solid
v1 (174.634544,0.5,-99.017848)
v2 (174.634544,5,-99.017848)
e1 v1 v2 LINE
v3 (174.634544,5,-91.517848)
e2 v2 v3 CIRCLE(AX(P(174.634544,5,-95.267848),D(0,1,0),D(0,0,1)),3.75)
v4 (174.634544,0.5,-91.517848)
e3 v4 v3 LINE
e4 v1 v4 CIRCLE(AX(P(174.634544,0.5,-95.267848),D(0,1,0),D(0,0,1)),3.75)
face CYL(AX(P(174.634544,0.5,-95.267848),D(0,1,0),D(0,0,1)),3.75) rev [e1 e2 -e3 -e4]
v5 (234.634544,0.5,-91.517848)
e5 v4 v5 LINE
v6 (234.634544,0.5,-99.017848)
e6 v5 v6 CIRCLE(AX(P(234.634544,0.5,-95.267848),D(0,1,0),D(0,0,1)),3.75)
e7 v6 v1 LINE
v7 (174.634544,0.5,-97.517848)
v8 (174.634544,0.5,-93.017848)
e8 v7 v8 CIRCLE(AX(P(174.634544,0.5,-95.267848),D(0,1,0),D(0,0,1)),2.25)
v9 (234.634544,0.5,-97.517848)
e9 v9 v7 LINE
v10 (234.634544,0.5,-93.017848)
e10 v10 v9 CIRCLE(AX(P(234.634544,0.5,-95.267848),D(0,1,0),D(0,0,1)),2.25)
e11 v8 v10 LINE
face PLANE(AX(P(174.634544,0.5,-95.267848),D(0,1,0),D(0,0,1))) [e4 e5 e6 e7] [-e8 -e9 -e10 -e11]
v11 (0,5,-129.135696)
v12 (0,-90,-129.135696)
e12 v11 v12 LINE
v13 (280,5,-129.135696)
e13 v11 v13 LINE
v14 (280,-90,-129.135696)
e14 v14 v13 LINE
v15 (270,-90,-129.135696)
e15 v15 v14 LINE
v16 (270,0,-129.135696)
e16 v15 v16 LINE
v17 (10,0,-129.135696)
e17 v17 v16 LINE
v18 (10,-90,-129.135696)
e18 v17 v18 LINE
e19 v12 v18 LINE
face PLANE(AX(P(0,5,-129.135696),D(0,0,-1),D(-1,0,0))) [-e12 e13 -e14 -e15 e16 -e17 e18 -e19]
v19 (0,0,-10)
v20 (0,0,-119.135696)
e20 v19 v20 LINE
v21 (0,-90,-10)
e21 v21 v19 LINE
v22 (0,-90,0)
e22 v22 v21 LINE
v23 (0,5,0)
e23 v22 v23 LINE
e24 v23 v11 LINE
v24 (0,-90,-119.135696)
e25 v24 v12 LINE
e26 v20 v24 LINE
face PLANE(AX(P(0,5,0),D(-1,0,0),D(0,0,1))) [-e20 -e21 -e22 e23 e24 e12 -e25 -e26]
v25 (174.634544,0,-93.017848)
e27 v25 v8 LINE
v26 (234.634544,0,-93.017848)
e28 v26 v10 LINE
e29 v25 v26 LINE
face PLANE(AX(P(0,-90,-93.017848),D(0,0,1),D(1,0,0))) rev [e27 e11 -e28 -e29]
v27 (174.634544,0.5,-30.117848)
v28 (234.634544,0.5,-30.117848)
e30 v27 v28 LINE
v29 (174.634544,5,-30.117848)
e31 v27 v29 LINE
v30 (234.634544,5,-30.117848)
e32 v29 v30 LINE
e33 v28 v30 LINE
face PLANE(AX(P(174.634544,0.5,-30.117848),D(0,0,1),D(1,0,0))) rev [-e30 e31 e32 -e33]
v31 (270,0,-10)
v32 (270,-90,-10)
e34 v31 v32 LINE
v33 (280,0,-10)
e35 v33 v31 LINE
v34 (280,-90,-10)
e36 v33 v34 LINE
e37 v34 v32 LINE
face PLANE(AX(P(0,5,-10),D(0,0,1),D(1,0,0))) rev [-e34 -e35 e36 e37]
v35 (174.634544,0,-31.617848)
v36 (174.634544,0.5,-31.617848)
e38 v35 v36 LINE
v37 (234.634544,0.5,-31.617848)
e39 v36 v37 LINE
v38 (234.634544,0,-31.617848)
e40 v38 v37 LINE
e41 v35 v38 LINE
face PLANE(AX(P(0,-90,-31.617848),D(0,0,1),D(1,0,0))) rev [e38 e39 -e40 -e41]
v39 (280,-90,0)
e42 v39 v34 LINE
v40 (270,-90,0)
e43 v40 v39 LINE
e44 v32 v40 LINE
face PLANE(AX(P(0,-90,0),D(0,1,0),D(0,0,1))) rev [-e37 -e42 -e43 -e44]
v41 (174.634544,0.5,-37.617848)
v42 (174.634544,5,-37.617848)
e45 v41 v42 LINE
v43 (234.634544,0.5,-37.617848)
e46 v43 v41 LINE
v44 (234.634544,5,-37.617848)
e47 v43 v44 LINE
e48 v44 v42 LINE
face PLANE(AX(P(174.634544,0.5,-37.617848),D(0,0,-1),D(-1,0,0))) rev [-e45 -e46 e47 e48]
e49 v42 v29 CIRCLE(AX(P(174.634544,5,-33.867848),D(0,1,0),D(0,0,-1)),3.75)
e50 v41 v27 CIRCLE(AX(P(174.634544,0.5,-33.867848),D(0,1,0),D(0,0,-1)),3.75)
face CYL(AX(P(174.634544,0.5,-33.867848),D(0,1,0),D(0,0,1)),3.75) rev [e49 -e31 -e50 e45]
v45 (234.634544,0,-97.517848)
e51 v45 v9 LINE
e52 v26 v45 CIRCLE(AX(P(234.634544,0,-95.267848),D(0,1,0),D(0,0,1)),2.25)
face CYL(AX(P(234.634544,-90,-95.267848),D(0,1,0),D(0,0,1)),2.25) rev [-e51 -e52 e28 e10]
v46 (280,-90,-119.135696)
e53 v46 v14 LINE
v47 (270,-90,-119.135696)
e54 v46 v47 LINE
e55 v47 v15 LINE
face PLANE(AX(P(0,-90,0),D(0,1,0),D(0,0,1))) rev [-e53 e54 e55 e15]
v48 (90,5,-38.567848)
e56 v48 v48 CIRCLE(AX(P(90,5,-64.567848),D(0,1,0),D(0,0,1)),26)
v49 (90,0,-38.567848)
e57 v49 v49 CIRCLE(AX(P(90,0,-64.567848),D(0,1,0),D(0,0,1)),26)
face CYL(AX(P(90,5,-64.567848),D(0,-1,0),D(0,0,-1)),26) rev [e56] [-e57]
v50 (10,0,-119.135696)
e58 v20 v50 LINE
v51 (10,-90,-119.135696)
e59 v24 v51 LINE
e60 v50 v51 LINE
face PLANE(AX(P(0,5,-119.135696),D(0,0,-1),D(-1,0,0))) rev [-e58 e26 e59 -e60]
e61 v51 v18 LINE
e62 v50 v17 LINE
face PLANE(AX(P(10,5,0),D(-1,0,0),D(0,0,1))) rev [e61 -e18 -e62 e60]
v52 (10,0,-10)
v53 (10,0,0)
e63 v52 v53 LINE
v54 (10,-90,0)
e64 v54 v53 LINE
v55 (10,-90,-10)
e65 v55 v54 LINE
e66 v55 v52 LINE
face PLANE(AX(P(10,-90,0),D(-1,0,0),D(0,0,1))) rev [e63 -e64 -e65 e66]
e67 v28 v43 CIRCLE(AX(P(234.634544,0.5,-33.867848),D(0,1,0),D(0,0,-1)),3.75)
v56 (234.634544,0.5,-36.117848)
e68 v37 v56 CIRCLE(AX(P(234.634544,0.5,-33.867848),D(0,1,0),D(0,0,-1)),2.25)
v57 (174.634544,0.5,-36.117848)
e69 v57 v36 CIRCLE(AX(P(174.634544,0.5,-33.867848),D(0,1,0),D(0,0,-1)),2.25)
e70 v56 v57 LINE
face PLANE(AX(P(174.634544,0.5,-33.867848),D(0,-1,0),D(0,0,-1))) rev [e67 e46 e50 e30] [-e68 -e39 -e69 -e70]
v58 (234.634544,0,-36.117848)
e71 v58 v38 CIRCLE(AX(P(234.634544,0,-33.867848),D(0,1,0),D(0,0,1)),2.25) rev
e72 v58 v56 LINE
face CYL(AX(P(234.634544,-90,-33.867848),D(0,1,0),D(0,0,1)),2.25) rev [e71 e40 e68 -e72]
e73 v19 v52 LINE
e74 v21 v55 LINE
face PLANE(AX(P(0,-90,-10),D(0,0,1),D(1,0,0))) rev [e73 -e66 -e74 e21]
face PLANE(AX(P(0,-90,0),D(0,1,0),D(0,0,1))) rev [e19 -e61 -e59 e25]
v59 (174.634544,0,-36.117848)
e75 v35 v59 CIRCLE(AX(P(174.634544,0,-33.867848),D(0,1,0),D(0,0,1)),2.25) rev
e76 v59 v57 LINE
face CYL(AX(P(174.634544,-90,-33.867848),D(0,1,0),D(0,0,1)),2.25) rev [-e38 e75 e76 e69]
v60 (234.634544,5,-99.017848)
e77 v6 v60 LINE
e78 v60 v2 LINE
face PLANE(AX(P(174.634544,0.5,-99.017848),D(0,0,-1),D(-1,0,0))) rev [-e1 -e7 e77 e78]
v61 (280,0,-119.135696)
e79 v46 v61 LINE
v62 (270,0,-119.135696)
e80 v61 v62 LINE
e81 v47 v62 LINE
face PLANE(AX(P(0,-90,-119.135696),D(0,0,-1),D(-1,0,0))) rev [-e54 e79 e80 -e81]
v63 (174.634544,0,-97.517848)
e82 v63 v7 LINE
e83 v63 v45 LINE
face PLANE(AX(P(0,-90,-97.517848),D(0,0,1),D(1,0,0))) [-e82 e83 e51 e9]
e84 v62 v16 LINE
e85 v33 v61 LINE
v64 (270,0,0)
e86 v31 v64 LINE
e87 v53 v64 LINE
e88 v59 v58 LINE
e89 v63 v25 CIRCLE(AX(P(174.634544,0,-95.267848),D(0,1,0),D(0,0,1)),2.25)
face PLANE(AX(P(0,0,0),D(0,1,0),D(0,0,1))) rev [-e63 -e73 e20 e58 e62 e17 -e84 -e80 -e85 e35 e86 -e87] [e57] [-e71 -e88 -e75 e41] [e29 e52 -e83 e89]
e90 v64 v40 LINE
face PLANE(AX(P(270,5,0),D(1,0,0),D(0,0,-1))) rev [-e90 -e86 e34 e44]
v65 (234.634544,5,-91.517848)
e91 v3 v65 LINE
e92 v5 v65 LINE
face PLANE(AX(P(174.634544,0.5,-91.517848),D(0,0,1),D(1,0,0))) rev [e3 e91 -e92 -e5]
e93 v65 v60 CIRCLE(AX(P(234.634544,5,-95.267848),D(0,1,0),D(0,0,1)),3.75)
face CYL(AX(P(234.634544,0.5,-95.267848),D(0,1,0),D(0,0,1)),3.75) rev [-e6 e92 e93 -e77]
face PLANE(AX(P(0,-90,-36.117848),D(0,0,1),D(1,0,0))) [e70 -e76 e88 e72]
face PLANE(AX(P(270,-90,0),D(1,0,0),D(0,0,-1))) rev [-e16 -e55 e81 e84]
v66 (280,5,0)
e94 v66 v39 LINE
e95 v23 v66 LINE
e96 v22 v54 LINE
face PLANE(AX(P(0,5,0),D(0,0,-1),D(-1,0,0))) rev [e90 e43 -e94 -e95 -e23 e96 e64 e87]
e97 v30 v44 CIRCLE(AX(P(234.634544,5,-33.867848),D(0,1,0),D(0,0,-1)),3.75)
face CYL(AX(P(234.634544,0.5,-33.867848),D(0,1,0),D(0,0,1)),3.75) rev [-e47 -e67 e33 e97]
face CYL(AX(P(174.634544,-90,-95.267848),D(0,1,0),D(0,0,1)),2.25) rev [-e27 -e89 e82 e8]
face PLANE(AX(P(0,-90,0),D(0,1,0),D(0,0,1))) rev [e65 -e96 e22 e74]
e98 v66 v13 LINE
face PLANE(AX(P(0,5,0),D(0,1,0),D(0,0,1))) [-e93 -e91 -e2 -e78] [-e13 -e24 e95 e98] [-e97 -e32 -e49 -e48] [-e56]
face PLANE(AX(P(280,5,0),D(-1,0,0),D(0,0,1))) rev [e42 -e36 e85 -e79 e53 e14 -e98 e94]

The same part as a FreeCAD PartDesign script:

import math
import FreeCAD as App
import Part
import Sketcher

V = App.Vector

doc = App.newDocument("Part")
body = doc.addObject("PartDesign::Body", "Body")

# Sketch on XZ plane
sketch1 = doc.addObject("Sketcher::SketchObject", "Sketch")
body.addObject(sketch1)
sketch1.AttachmentSupport = (doc.XZ_Plane, [""])
sketch1.MapMode = "FlatFace"
sketch1.addGeometry([
    Part.LineSegment(V(10, -10, 0), V(10, 0, 0)),  # 0
    Part.LineSegment(V(10, 0, 0), V(270, 0, 0)),  # 1
    Part.LineSegment(V(270, 0, 0), V(270, -10, 0)),  # 2
    Part.LineSegment(V(270, -10, 0), V(280, -10, 0)),  # 3
    Part.LineSegment(V(280, -10, 0), V(280, -119, 0)),  # 4
    Part.LineSegment(V(280, -119, 0), V(270, -119, 0)),  # 5
    Part.LineSegment(V(270, -119, 0), V(270, -129, 0)),  # 6
    Part.LineSegment(V(270, -129, 0), V(10, -129, 0)),  # 7
    Part.LineSegment(V(10, -129, 0), V(10, -119, 0)),  # 8
    Part.LineSegment(V(10, -119, 0), V(0, -119, 0)),  # 9
    Part.LineSegment(V(0, -119, 0), V(0, -10, 0)),  # 10
    Part.LineSegment(V(0, -10, 0), V(10, -10, 0)),  # 11
    Part.Circle(V(90, -65, 0), V(0, 0, 1), 26),  # 12
], False)
sketch1.addConstraint([
    Sketcher.Constraint("Coincident", 0, 2, 1, 1),
    Sketcher.Constraint("Coincident", 1, 2, 2, 1),
    Sketcher.Constraint("Coincident", 2, 2, 3, 1),
    Sketcher.Constraint("Coincident", 3, 2, 4, 1),
    Sketcher.Constraint("Coincident", 4, 2, 5, 1),
    Sketcher.Constraint("Coincident", 5, 2, 6, 1),
    Sketcher.Constraint("Coincident", 6, 2, 7, 1),
    Sketcher.Constraint("Coincident", 7, 2, 8, 1),
    Sketcher.Constraint("Coincident", 8, 2, 9, 1),
    Sketcher.Constraint("Coincident", 9, 2, 10, 1),
    Sketcher.Constraint("Coincident", 10, 2, 11, 1),
    Sketcher.Constraint("Coincident", 11, 2, 0, 1),
    Sketcher.Constraint("Vertical", 0),
    Sketcher.Constraint("Horizontal", 1),
    Sketcher.Constraint("Vertical", 2),
    Sketcher.Constraint("Horizontal", 3),
    Sketcher.Constraint("Vertical", 4),
    Sketcher.Constraint("Horizontal", 5),
    Sketcher.Constraint("Vertical", 6),
    Sketcher.Constraint("Horizontal", 7),
    Sketcher.Constraint("Vertical", 8),
    Sketcher.Constraint("Horizontal", 9),
    Sketcher.Constraint("Vertical", 10),
    Sketcher.Constraint("Horizontal", 11),
    Sketcher.Constraint("PointOnObject", 0, 2, -1),
    Sketcher.Constraint("PointOnObject", 9, 2, -2),
    Sketcher.Constraint("Horizontal", 5, 2, 8, 2),
    Sketcher.Constraint("Horizontal", 3, 2, 10, 2),
    Sketcher.Constraint("Vertical", 2, 2, 5, 2),
    Sketcher.Constraint("Vertical", 0, 2, 7, 2),
    Sketcher.Constraint("Equal", 5, 9),
    Sketcher.Constraint("Equal", 11, 0),
    Sketcher.Constraint("Equal", 2, 6),
    Sketcher.Constraint("Diameter", 12, 52.0),
    Sketcher.Constraint("DistanceX", 1, 1, 1, 2, 260.0),
    Sketcher.Constraint("DistanceX", 3, 1, 3, 2, 10.0),
    Sketcher.Constraint("DistanceX", -1, 1, 12, 3, 90.0),
    Sketcher.Constraint("DistanceY", 4, 2, 4, 1, 109.135696),
    Sketcher.Constraint("DistanceY", 12, 3, -1, 1, 64.567848),
])
pad1 = doc.addObject("PartDesign::Pad", "Pad")
body.addObject(pad1)
pad1.Profile = sketch1
pad1.Length = 5
pad1.Reversed = True

# Sketch on XZ plane
sketch2 = doc.addObject("Sketcher::SketchObject", "Sketch001")
body.addObject(sketch2)
sketch2.AttachmentSupport = (doc.XZ_Plane, [""])
sketch2.MapMode = "FlatFace"
sketch2.addGeometry([
    Part.LineSegment(V(0, -10, 0), V(0, 0, 0)),  # 0
    Part.LineSegment(V(0, 0, 0), V(10, 0, 0)),  # 1
    Part.LineSegment(V(10, 0, 0), V(10, -10, 0)),  # 2
    Part.LineSegment(V(10, -10, 0), V(0, -10, 0)),  # 3
    Part.LineSegment(V(270, -10, 0), V(270, 0, 0)),  # 4
    Part.LineSegment(V(270, 0, 0), V(280, 0, 0)),  # 5
    Part.LineSegment(V(280, 0, 0), V(280, -10, 0)),  # 6
    Part.LineSegment(V(280, -10, 0), V(270, -10, 0)),  # 7
    Part.LineSegment(V(270, -129, 0), V(270, -119, 0)),  # 8
    Part.LineSegment(V(270, -119, 0), V(280, -119, 0)),  # 9
    Part.LineSegment(V(280, -119, 0), V(280, -129, 0)),  # 10
    Part.LineSegment(V(280, -129, 0), V(270, -129, 0)),  # 11
    Part.LineSegment(V(0, -129, 0), V(0, -119, 0)),  # 12
    Part.LineSegment(V(0, -119, 0), V(10, -119, 0)),  # 13
    Part.LineSegment(V(10, -119, 0), V(10, -129, 0)),  # 14
    Part.LineSegment(V(10, -129, 0), V(0, -129, 0)),  # 15
], False)
sketch2.addConstraint([
    Sketcher.Constraint("Coincident", 0, 2, 1, 1),
    Sketcher.Constraint("Coincident", 1, 2, 2, 1),
    Sketcher.Constraint("Coincident", 2, 2, 3, 1),
    Sketcher.Constraint("Coincident", 3, 2, 0, 1),
    Sketcher.Constraint("Coincident", 4, 2, 5, 1),
    Sketcher.Constraint("Coincident", 5, 2, 6, 1),
    Sketcher.Constraint("Coincident", 6, 2, 7, 1),
    Sketcher.Constraint("Coincident", 7, 2, 4, 1),
    Sketcher.Constraint("Coincident", 8, 2, 9, 1),
    Sketcher.Constraint("Coincident", 9, 2, 10, 1),
    Sketcher.Constraint("Coincident", 10, 2, 11, 1),
    Sketcher.Constraint("Coincident", 11, 2, 8, 1),
    Sketcher.Constraint("Coincident", 12, 2, 13, 1),
    Sketcher.Constraint("Coincident", 13, 2, 14, 1),
    Sketcher.Constraint("Coincident", 14, 2, 15, 1),
    Sketcher.Constraint("Coincident", 15, 2, 12, 1),
    Sketcher.Constraint("Vertical", 0),
    Sketcher.Constraint("Horizontal", 1),
    Sketcher.Constraint("Vertical", 2),
    Sketcher.Constraint("Horizontal", 3),
    Sketcher.Constraint("Vertical", 4),
    Sketcher.Constraint("Horizontal", 5),
    Sketcher.Constraint("Vertical", 6),
    Sketcher.Constraint("Horizontal", 7),
    Sketcher.Constraint("Vertical", 8),
    Sketcher.Constraint("Horizontal", 9),
    Sketcher.Constraint("Vertical", 10),
    Sketcher.Constraint("Horizontal", 11),
    Sketcher.Constraint("Vertical", 12),
    Sketcher.Constraint("Horizontal", 13),
    Sketcher.Constraint("Vertical", 14),
    Sketcher.Constraint("Horizontal", 15),
    Sketcher.Constraint("Coincident", 0, 2, -1, 1),
    Sketcher.Constraint("PointOnObject", 4, 2, -1),
    Sketcher.Constraint("PointOnObject", 12, 2, -2),
    Sketcher.Constraint("Horizontal", 3, 2, 6, 2),
    Sketcher.Constraint("Horizontal", 9, 2, 12, 2),
    Sketcher.Constraint("Horizontal", 11, 2, 14, 2),
    Sketcher.Constraint("Vertical", 7, 2, 8, 2),
    Sketcher.Constraint("Vertical", 6, 2, 9, 2),
    Sketcher.Constraint("Vertical", 2, 2, 13, 2),
    Sketcher.Constraint("Equal", 3, 5),
    Sketcher.Constraint("Equal", 15, 0),
    Sketcher.Constraint("Equal", 6, 8),
    Sketcher.Constraint("DistanceX", 1, 1, 1, 2, 10.0),
    Sketcher.Constraint("DistanceX", -1, 1, 4, 2, 270.0),
    Sketcher.Constraint("DistanceY", 8, 2, -1, 1, 119.135696),
])
pad2 = doc.addObject("PartDesign::Pad", "Pad001")
body.addObject(pad2)
pad2.Profile = sketch2
pad2.Type = "TwoLengths"
pad2.Length = 5
pad2.Length2 = 90
pad2.Reversed = True

# Sketch on XZ plane
sketch3 = doc.addObject("Sketcher::SketchObject", "Sketch002")
body.addObject(sketch3)
sketch3.AttachmentSupport = (doc.XZ_Plane, [""])
sketch3.MapMode = "FlatFace"
sketch3.AttachmentOffset = App.Placement(V(0, 0, -5), App.Rotation())
sketch3.addGeometry([
    Part.LineSegment(V(174.6, -93, 0), V(234.6, -93, 0)),  # 0
    Part.ArcOfCircle(Part.Circle(V(234.6, -95.3, 0), V(0, 0, 1), 2.2), math.radians(-90), math.radians(90)),  # 1
    Part.LineSegment(V(234.6, -97.5, 0), V(174.6, -97.5, 0)),  # 2
    Part.ArcOfCircle(Part.Circle(V(174.6, -95.3, 0), V(0, 0, 1), 2.2), math.radians(90), math.radians(270)),  # 3
    Part.ArcOfCircle(Part.Circle(V(234.6, -33.9, 0), V(0, 0, 1), 2.2), math.radians(-90), math.radians(90)),  # 4
    Part.LineSegment(V(234.6, -36.1, 0), V(174.6, -36.1, 0)),  # 5
    Part.ArcOfCircle(Part.Circle(V(174.6, -33.9, 0), V(0, 0, 1), 2.2), math.radians(90), math.radians(270)),  # 6
    Part.LineSegment(V(174.6, -31.6, 0), V(234.6, -31.6, 0)),  # 7
], False)
sketch3.addConstraint([
    Sketcher.Constraint("Tangent", 0, 2, 1, 2),
    Sketcher.Constraint("Tangent", 1, 1, 2, 1),
    Sketcher.Constraint("Tangent", 2, 2, 3, 2),
    Sketcher.Constraint("Tangent", 3, 1, 0, 1),
    Sketcher.Constraint("Tangent", 4, 1, 5, 1),
    Sketcher.Constraint("Tangent", 5, 2, 6, 2),
    Sketcher.Constraint("Tangent", 6, 1, 7, 1),
    Sketcher.Constraint("Tangent", 7, 2, 4, 2),
    Sketcher.Constraint("Horizontal", 0),
    Sketcher.Constraint("Horizontal", 2),
    Sketcher.Constraint("Horizontal", 5),
    Sketcher.Constraint("Horizontal", 7),
    Sketcher.Constraint("Equal", 3, 4),
    Sketcher.Constraint("Vertical", 1, 3, 4, 3),
    Sketcher.Constraint("Vertical", 3, 3, 6, 3),
    Sketcher.Constraint("DistanceX", 0, 1, 0, 2, 60.0),
    Sketcher.Constraint("Radius", 1, 2.25),
    Sketcher.Constraint("DistanceY", 1, 3, 4, 3, 61.4),
    Sketcher.Constraint("DistanceX", -1, 1, 1, 3, 234.634544),
    Sketcher.Constraint("DistanceY", 1, 3, -1, 1, 95.267848),
])
pocket1 = doc.addObject("PartDesign::Pocket", "Pocket")
body.addObject(pocket1)
pocket1.Profile = sketch3
pocket1.Type = "ThroughAll"
pocket1.Reversed = True

# Sketch on XZ plane
sketch4 = doc.addObject("Sketcher::SketchObject", "Sketch003")
body.addObject(sketch4)
sketch4.AttachmentSupport = (doc.XZ_Plane, [""])
sketch4.MapMode = "FlatFace"
sketch4.AttachmentOffset = App.Placement(V(0, 0, -5), App.Rotation())
sketch4.addGeometry([
    Part.LineSegment(V(234.6, -99, 0), V(174.6, -99, 0)),  # 0
    Part.ArcOfCircle(Part.Circle(V(174.6, -95.3, 0), V(0, 0, 1), 3.8), math.radians(90), math.radians(270)),  # 1
    Part.LineSegment(V(174.6, -91.5, 0), V(234.6, -91.5, 0)),  # 2
    Part.ArcOfCircle(Part.Circle(V(234.6, -95.3, 0), V(0, 0, 1), 3.8), math.radians(-90), math.radians(90)),  # 3
    Part.LineSegment(V(174.6, -97.5, 0), V(234.6, -97.5, 0)),  # 4
    Part.ArcOfCircle(Part.Circle(V(234.6, -95.3, 0), V(0, 0, 1), 2.2), math.radians(-90), math.radians(90)),  # 5
    Part.LineSegment(V(234.6, -93, 0), V(174.6, -93, 0)),  # 6
    Part.ArcOfCircle(Part.Circle(V(174.6, -95.3, 0), V(0, 0, 1), 2.2), math.radians(90), math.radians(270)),  # 7
    Part.LineSegment(V(174.6, -30.1, 0), V(234.6, -30.1, 0)),  # 8
    Part.ArcOfCircle(Part.Circle(V(234.6, -33.9, 0), V(0, 0, 1), 3.8), math.radians(-90), math.radians(90)),  # 9
    Part.LineSegment(V(234.6, -37.6, 0), V(174.6, -37.6, 0)),  # 10
    Part.ArcOfCircle(Part.Circle(V(174.6, -33.9, 0), V(0, 0, 1), 3.8), math.radians(90), math.radians(270)),  # 11
    Part.LineSegment(V(234.6, -31.6, 0), V(174.6, -31.6, 0)),  # 12
    Part.ArcOfCircle(Part.Circle(V(174.6, -33.9, 0), V(0, 0, 1), 2.2), math.radians(90), math.radians(270)),  # 13
    Part.LineSegment(V(174.6, -36.1, 0), V(234.6, -36.1, 0)),  # 14
    Part.ArcOfCircle(Part.Circle(V(234.6, -33.9, 0), V(0, 0, 1), 2.2), math.radians(-90), math.radians(90)),  # 15
], False)
sketch4.addConstraint([
    Sketcher.Constraint("Tangent", 0, 2, 1, 2),
    Sketcher.Constraint("Tangent", 1, 1, 2, 1),
    Sketcher.Constraint("Tangent", 2, 2, 3, 2),
    Sketcher.Constraint("Tangent", 3, 1, 0, 1),
    Sketcher.Constraint("Tangent", 4, 2, 5, 1),
    Sketcher.Constraint("Tangent", 5, 2, 6, 1),
    Sketcher.Constraint("Tangent", 6, 2, 7, 1),
    Sketcher.Constraint("Tangent", 7, 2, 4, 1),
    Sketcher.Constraint("Tangent", 8, 2, 9, 2),
    Sketcher.Constraint("Tangent", 9, 1, 10, 1),
    Sketcher.Constraint("Tangent", 10, 2, 11, 2),
    Sketcher.Constraint("Tangent", 11, 1, 8, 1),
    Sketcher.Constraint("Tangent", 12, 2, 13, 1),
    Sketcher.Constraint("Tangent", 13, 2, 14, 1),
    Sketcher.Constraint("Tangent", 14, 2, 15, 1),
    Sketcher.Constraint("Tangent", 15, 2, 12, 1),
    Sketcher.Constraint("Horizontal", 0),
    Sketcher.Constraint("Horizontal", 2),
    Sketcher.Constraint("Horizontal", 4),
    Sketcher.Constraint("Horizontal", 6),
    Sketcher.Constraint("Horizontal", 8),
    Sketcher.Constraint("Horizontal", 10),
    Sketcher.Constraint("Horizontal", 12),
    Sketcher.Constraint("Horizontal", 14),
    Sketcher.Constraint("Coincident", 5, 3, 3, 3),
    Sketcher.Constraint("Coincident", 13, 3, 11, 3),
    Sketcher.Constraint("Equal", 3, 9),
    Sketcher.Constraint("Equal", 7, 13),
    Sketcher.Constraint("Vertical", 5, 3, 9, 3),
    Sketcher.Constraint("Vertical", 7, 3, 11, 3),
    Sketcher.Constraint("Vertical", 5, 3, 15, 3),
    Sketcher.Constraint("Vertical", 13, 3, 0, 2),
    Sketcher.Constraint("DistanceX", 0, 2, 0, 1, 60.0),
    Sketcher.Constraint("Radius", 1, 3.75),
    Sketcher.Constraint("Radius", 5, 2.25),
    Sketcher.Constraint("DistanceY", 3, 3, 9, 3, 61.4),
    Sketcher.Constraint("DistanceX", -1, 1, 1, 3, 174.634544),
    Sketcher.Constraint("DistanceY", 1, 3, -1, 1, 95.267848),
])
pocket2 = doc.addObject("PartDesign::Pocket", "Pocket001")
body.addObject(pocket2)
pocket2.Profile = sketch4
pocket2.Length = 4.5
pocket2.Reversed = True

doc.recompute()
